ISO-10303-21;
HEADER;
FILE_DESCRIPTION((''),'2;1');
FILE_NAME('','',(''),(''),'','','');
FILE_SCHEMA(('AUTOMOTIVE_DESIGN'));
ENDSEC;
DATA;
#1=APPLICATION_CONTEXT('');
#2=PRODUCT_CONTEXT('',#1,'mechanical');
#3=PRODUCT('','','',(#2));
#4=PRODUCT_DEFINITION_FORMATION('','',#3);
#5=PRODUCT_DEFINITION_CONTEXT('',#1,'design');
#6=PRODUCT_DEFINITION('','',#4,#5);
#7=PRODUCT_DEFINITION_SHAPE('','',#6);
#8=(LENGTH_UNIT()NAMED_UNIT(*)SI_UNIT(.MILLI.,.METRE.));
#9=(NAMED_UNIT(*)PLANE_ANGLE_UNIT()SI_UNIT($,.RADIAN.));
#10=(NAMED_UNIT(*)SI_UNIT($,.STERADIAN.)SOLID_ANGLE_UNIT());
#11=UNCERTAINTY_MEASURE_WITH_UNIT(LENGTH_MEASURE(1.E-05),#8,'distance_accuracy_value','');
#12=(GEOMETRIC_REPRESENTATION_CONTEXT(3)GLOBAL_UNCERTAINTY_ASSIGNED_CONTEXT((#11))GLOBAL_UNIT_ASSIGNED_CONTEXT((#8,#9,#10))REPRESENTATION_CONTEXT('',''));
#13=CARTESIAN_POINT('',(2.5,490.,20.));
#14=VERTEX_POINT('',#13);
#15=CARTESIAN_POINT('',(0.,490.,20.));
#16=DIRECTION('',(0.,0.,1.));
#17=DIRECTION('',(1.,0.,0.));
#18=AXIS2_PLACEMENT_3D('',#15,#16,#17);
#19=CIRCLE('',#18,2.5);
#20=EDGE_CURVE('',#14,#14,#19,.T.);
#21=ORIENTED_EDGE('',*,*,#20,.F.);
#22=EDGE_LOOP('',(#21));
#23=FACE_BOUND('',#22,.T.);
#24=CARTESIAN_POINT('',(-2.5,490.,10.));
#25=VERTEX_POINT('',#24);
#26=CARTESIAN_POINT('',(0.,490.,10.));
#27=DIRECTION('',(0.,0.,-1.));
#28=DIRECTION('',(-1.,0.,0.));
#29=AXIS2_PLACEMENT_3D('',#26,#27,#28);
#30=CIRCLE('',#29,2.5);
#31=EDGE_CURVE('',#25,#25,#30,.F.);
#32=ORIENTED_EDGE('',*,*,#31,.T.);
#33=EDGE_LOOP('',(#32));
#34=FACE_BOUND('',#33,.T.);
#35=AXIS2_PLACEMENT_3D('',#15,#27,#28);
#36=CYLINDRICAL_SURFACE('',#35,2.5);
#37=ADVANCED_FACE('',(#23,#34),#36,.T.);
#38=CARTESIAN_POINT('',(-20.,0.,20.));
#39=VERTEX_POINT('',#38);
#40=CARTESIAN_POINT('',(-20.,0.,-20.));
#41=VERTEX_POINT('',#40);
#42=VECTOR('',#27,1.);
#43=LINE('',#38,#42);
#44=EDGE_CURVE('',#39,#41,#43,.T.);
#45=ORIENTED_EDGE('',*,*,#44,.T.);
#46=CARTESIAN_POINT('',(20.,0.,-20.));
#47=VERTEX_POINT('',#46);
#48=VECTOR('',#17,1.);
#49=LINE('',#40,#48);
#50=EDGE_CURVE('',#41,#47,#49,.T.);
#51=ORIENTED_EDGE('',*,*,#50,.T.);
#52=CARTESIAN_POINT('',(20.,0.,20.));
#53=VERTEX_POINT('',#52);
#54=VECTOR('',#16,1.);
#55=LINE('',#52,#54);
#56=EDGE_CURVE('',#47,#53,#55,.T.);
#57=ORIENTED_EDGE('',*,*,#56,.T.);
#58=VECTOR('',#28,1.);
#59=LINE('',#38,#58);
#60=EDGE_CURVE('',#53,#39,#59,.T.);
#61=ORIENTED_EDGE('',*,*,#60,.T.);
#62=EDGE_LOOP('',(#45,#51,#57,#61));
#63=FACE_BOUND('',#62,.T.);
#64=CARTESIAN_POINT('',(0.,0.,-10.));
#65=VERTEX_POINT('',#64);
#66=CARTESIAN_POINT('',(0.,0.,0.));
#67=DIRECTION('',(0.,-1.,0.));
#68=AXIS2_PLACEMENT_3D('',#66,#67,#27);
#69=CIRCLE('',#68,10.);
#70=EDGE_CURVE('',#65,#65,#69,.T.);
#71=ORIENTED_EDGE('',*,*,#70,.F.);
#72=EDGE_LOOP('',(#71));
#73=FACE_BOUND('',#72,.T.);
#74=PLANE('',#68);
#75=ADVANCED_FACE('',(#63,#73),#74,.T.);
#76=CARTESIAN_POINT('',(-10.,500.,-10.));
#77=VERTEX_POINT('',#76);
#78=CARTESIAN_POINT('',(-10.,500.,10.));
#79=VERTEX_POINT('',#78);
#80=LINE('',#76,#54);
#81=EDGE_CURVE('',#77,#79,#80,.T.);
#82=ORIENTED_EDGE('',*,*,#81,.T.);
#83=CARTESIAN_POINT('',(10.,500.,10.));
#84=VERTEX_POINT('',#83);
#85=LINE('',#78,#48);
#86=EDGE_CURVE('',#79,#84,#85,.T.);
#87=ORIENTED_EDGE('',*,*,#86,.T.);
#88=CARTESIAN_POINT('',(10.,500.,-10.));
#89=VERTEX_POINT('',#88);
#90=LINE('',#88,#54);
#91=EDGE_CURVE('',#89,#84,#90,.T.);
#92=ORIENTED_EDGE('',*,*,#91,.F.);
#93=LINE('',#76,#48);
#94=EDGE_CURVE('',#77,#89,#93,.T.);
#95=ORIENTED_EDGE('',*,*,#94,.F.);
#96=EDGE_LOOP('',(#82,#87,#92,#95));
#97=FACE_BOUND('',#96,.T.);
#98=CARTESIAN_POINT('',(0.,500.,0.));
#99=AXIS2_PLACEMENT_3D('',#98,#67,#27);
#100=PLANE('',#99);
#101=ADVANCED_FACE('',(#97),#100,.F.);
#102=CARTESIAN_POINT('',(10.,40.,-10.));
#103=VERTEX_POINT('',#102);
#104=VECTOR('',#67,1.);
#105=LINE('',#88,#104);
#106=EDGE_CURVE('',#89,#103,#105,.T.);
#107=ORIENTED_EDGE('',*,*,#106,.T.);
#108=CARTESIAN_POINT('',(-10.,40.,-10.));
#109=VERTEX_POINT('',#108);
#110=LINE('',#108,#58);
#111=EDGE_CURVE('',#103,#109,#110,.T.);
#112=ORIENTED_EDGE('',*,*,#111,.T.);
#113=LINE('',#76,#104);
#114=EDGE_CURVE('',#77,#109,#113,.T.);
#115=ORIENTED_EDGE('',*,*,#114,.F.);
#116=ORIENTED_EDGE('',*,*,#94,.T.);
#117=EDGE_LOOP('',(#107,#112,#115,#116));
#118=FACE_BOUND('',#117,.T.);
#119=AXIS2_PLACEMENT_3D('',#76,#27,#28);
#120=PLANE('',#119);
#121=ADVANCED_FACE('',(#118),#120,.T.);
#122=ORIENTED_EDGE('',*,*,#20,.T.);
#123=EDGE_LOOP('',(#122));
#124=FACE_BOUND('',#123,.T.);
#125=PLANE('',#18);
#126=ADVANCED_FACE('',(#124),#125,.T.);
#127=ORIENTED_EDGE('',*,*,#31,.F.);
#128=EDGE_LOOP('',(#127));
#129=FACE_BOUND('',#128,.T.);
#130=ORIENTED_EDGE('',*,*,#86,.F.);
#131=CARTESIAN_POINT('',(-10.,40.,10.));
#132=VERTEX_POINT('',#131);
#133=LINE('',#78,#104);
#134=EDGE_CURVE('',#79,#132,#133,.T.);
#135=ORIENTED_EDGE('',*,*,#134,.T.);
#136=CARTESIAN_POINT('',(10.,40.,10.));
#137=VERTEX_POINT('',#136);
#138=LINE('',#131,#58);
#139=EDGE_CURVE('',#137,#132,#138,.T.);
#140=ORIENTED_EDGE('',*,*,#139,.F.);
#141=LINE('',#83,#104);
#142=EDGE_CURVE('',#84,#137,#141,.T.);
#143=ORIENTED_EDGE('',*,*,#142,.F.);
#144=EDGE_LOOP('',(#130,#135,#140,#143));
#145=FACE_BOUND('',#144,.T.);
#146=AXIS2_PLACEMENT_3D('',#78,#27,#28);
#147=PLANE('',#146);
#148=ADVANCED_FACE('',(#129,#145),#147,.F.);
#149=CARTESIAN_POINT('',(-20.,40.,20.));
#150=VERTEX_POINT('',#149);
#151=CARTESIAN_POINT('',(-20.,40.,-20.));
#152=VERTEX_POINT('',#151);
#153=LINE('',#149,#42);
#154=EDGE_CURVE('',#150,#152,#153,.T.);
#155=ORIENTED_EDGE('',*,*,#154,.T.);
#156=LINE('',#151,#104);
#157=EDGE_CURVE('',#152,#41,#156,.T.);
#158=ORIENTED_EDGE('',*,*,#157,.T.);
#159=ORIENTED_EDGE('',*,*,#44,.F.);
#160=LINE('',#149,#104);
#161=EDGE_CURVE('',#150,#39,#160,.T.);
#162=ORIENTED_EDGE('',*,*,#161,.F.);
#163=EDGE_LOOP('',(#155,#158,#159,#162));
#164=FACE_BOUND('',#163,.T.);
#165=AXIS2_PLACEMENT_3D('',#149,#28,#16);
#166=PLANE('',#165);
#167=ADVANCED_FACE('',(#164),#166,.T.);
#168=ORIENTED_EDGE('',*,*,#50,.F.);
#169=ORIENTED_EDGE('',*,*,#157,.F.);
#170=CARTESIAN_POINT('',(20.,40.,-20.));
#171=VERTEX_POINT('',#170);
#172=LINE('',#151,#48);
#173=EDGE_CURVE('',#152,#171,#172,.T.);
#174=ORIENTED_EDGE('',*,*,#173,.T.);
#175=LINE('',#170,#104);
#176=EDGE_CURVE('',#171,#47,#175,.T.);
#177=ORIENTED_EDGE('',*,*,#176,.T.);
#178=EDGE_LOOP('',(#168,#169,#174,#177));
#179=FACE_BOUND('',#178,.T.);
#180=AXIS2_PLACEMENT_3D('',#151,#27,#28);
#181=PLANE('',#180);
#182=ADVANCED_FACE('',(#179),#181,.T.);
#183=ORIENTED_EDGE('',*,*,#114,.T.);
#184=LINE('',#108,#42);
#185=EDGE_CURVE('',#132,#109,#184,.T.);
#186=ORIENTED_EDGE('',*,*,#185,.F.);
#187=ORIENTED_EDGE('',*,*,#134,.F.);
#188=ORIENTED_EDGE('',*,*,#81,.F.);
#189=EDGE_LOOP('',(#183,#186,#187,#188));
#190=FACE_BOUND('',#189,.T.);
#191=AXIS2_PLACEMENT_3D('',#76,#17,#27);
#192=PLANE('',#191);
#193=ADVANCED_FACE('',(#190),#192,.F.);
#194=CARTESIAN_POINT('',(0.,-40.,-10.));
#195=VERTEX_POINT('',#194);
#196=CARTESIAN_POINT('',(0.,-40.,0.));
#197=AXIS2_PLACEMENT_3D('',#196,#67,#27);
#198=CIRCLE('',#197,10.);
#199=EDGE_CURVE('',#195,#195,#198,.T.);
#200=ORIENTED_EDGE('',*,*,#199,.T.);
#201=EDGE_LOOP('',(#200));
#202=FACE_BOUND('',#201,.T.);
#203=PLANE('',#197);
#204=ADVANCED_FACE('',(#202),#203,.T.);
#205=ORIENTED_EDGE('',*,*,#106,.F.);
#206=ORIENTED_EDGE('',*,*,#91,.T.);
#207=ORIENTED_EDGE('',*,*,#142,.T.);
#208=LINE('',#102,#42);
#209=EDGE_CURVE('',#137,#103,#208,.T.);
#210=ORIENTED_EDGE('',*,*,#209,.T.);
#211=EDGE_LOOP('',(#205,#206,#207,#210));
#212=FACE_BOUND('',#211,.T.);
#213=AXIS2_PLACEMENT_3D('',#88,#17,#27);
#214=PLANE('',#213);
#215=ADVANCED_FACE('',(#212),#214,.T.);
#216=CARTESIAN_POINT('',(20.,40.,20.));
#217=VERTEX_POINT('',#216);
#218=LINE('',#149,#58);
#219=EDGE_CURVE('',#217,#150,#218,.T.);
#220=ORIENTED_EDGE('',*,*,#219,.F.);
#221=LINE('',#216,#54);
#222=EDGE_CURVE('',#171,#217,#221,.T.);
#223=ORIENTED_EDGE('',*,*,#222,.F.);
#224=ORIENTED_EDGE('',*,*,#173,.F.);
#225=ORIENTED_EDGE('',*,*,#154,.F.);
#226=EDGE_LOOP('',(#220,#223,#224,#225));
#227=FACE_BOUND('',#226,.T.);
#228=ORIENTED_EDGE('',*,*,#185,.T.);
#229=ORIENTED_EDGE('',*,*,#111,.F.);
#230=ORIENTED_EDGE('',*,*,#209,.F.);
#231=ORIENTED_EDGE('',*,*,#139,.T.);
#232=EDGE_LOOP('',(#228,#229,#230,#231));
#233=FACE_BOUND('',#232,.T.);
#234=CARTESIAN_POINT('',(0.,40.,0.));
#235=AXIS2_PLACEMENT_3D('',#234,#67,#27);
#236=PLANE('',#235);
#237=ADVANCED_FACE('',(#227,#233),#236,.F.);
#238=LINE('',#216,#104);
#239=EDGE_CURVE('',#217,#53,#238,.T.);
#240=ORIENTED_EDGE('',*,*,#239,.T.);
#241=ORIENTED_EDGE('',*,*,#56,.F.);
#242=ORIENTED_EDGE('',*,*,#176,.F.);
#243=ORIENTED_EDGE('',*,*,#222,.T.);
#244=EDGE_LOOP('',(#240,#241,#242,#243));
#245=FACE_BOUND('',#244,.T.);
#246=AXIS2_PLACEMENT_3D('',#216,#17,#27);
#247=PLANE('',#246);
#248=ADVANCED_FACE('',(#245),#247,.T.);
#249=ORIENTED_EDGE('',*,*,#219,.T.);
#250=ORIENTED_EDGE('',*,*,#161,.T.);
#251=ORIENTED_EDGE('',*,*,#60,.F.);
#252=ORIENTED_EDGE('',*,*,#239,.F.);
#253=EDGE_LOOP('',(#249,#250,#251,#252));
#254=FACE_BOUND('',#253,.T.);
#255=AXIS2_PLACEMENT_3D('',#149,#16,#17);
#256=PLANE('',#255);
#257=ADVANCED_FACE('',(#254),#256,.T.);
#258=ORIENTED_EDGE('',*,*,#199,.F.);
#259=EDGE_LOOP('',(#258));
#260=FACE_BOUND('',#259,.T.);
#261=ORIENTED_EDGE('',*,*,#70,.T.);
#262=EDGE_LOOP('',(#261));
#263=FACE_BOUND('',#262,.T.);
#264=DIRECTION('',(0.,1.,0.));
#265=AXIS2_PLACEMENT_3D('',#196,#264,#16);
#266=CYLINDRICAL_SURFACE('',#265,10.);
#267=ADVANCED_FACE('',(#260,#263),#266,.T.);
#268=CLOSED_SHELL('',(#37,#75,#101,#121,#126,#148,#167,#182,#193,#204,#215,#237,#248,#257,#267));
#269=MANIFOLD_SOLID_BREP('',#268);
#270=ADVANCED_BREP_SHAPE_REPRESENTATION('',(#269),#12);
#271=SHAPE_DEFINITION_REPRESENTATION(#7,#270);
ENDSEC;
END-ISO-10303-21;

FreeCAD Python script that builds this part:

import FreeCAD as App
import Part
import Sketcher
from FreeCAD import Vector
Q = App.Units.Quantity


def add_polygon(sketch, points):
    """Adds a closed chain of lines whose ends are joined by coincident constraints."""
    first, n = sketch.GeometryCount, len(points)
    for a, b in zip(points, points[1:] + points[:1]):
        sketch.addGeometry(Part.LineSegment(App.Vector(*a, 0), App.Vector(*b, 0)), False)
    for i in range(n):
        sketch.addConstraint(Sketcher.Constraint("Coincident", first + i, 2, first + (i + 1) % n, 1))

doc = App.newDocument("Part")
body = doc.addObject("PartDesign::Body", "Body")

sketch1 = doc.addObject("Sketcher::SketchObject", "Sketch")
body.addObject(sketch1)
sketch1.AttachmentSupport = (doc.XZ_Plane, [""])
sketch1.MapMode = "FlatFace"
add_polygon(sketch1, [(-10, -10), (-10, 10), (10, 10), (10, -10)])
sketch1.addConstraint(Sketcher.Constraint("Vertical", 0))
sketch1.addConstraint(Sketcher.Constraint("Horizontal", 1))
sketch1.addConstraint(Sketcher.Constraint("Vertical", 2))
sketch1.addConstraint(Sketcher.Constraint("Horizontal", 3))
sketch1.addConstraint(Sketcher.Constraint("Symmetric", 0, 2, 2, 2, -1, 1))
sketch1.addConstraint(Sketcher.Constraint("Equal", 3, 0))
sketch1.addConstraint(Sketcher.Constraint("DistanceX", 1, 1, 1, 2, Q("20 mm")))
pad1 = doc.addObject("PartDesign::Pad", "Pad")
body.addObject(pad1)
pad1.Profile = sketch1
pad1.Length = 500
pad1.Reversed = True

sketch2 = doc.addObject("Sketcher::SketchObject", "Sketch001")
body.addObject(sketch2)
sketch2.AttachmentSupport = (doc.XZ_Plane, [""])
sketch2.MapMode = "FlatFace"
add_polygon(sketch2, [(-20, 20), (-20, -20), (20, -20), (20, 20)])
sketch2.addConstraint(Sketcher.Constraint("Vertical", 0))
sketch2.addConstraint(Sketcher.Constraint("Horizontal", 1))
sketch2.addConstraint(Sketcher.Constraint("Vertical", 2))
sketch2.addConstraint(Sketcher.Constraint("Horizontal", 3))
sketch2.addConstraint(Sketcher.Constraint("Symmetric", 0, 2, 2, 2, -1, 1))
sketch2.addConstraint(Sketcher.Constraint("Equal", 3, 0))
sketch2.addConstraint(Sketcher.Constraint("DistanceX", 1, 1, 1, 2, Q("40 mm")))
pad2 = doc.addObject("PartDesign::Pad", "Pad001")
body.addObject(pad2)
pad2.Profile = sketch2
pad2.Length = 40
pad2.Reversed = True

sketch3 = doc.addObject("Sketcher::SketchObject", "Sketch002")
body.addObject(sketch3)
sketch3.AttachmentSupport = (doc.XZ_Plane, [""])
sketch3.MapMode = "FlatFace"
sketch3.addGeometry(Part.Circle(Vector(0, 0, 0), Vector(0, 0, 1), 10), False)
sketch3.addConstraint(Sketcher.Constraint("Coincident", 0, 3, -1, 1))
sketch3.addConstraint(Sketcher.Constraint("Diameter", 0, Q("20 mm")))
pad3 = doc.addObject("PartDesign::Pad", "Pad002")
body.addObject(pad3)
pad3.Profile = sketch3
pad3.Length = 40

sketch4 = doc.addObject("Sketcher::SketchObject", "Sketch003")
body.addObject(sketch4)
sketch4.AttachmentSupport = (doc.XY_Plane, [""])
sketch4.MapMode = "FlatFace"
sketch4.AttachmentOffset = App.Placement(Vector(0, 0, 10), App.Rotation())
sketch4.addGeometry(Part.Circle(Vector(0, 490, 0), Vector(0, 0, 1), 2.5), False)
sketch4.addConstraint(Sketcher.Constraint("PointOnObject", 0, 3, -2))
sketch4.addConstraint(Sketcher.Constraint("Diameter", 0, Q("5 mm")))
sketch4.addConstraint(Sketcher.Constraint("DistanceY", -1, 1, 0, 3, Q("490 mm")))
pad4 = doc.addObject("PartDesign::Pad", "Pad003")
body.addObject(pad4)
pad4.Profile = sketch4
pad4.Length = 10

doc.recompute()
